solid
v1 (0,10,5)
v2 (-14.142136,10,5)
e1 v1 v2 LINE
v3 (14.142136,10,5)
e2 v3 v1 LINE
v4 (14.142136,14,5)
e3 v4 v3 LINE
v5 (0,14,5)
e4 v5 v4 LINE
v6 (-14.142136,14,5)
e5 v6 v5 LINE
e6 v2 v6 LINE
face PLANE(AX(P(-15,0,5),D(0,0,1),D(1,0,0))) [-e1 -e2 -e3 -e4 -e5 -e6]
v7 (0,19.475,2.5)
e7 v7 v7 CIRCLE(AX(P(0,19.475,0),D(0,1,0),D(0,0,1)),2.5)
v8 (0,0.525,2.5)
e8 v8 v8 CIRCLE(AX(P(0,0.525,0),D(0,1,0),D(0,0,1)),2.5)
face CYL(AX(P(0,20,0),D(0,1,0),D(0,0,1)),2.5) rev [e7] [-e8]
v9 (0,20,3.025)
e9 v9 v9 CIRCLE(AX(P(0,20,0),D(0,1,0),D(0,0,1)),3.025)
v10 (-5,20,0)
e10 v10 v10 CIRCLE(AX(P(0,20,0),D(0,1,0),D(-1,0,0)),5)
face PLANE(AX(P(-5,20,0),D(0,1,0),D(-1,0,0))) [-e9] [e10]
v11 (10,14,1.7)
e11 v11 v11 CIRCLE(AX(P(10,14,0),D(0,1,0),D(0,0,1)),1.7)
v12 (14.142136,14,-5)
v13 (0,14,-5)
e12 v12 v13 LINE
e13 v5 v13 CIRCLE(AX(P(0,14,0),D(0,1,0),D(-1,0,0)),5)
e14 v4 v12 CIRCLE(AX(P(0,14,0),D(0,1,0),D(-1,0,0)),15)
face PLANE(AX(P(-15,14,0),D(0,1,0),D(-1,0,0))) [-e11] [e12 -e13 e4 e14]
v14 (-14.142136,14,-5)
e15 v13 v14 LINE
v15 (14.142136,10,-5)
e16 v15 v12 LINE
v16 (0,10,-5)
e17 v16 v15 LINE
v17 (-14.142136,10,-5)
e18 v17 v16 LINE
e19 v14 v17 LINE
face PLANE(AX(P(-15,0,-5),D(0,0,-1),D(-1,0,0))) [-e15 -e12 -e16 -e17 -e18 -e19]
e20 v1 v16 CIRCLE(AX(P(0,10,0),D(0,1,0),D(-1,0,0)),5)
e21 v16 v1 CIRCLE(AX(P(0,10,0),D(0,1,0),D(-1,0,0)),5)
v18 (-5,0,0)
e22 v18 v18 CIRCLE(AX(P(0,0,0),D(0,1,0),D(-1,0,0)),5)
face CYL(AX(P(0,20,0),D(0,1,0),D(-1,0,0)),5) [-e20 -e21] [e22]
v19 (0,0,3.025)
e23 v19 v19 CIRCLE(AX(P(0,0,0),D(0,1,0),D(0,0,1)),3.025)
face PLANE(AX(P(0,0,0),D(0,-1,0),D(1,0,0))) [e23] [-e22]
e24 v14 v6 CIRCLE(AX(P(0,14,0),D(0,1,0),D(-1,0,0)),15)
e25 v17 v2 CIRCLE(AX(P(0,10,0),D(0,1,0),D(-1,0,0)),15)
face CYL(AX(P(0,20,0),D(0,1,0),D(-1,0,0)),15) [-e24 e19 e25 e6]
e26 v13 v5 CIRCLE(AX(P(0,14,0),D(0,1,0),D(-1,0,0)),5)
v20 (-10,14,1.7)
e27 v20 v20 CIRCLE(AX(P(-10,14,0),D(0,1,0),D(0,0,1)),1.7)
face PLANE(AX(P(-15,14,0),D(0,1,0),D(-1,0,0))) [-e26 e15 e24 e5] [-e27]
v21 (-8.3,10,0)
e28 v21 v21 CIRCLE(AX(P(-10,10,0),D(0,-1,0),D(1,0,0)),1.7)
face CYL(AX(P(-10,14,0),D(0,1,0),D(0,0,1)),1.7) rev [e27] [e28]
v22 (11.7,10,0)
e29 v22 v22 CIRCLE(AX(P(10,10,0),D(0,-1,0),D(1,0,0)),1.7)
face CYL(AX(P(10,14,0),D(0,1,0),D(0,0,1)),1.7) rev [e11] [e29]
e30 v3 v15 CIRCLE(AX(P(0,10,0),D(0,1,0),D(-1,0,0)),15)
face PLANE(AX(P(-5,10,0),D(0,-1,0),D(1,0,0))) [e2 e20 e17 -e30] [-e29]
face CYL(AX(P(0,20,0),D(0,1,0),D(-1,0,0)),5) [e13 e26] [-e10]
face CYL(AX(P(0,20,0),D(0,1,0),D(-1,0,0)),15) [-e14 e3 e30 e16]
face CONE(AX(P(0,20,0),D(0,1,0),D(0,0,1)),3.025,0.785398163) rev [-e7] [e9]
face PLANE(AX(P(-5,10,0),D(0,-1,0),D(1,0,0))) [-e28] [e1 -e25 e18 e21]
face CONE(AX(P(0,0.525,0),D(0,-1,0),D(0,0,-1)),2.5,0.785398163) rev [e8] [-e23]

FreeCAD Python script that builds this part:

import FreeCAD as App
import Part
import Sketcher
from FreeCAD import Vector


def add_polygon(sketch, points):
    """Adds a closed chain of lines whose ends are joined by coincident constraints."""
    first, n = sketch.GeometryCount, len(points)
    for a, b in zip(points, points[1:] + points[:1]):
        sketch.addGeometry(Part.LineSegment(App.Vector(*a, 0), App.Vector(*b, 0)), False)
    for i in range(n):
        sketch.addConstraint(Sketcher.Constraint("Coincident", first + i, 2, first + (i + 1) % n, 1))

doc = App.newDocument("Part")
params = doc.addObject("Spreadsheet::Sheet", "Params")
for row, (alias, value) in enumerate([
    ("sketch1_width", "5 mm"),
    ("sketch1_width2", "10 mm"),
    ("sketch1_height", "20 mm"),
    ("sketch1_height2", "6 mm"),
    ("revolution_angle", "360 deg"),
    ("sketch2_diameter", "3.4 mm"),
    ("hole_diameter", "3.4 mm"),
    ("sketch3_width", "20 mm"),
    ("sketch3_width2", "18.95 mm"),
    ("groove_angle", "360 deg"),
    ("sketch4_width", "30 mm"),
    ("sketch4_height", "10 mm"),
    ("sketch4_width2", "41.38 mm"),
], start=1):
    params.set(f"A{row}", alias)
    params.set(f"B{row}", "=" + value)
    params.setAlias(f"B{row}", alias)

body = doc.addObject("PartDesign::Body", "Body")

sketch1 = body.newObject("Sketcher::SketchObject", "Sketch")
sketch1.AttachmentSupport = (doc.getObject("XY_Plane"), [""])
sketch1.MapMode = "FlatFace"
add_polygon(sketch1, [(-5, 0), (0, 0), (0, 20), (-5, 20), (-5, 14), (-15, 14), (-15, 10), (-5, 10)])
sketch1.addConstraint(Sketcher.Constraint("Horizontal", 0))
sketch1.addConstraint(Sketcher.Constraint("Vertical", 1))
sketch1.addConstraint(Sketcher.Constraint("Horizontal", 2))
sketch1.addConstraint(Sketcher.Constraint("Vertical", 3))
sketch1.addConstraint(Sketcher.Constraint("Horizontal", 4))
sketch1.addConstraint(Sketcher.Constraint("Vertical", 5))
sketch1.addConstraint(Sketcher.Constraint("Horizontal", 6))
sketch1.addConstraint(Sketcher.Constraint("Vertical", 7))
sketch1.addConstraint(Sketcher.Constraint("Coincident", 0, 2, -1, 1))
sketch1.addConstraint(Sketcher.Constraint("Vertical", 3, 2, 6, 2))
sketch1.addConstraint(Sketcher.Constraint("Equal", 6, 7))
sketch1.addConstraint(Sketcher.Constraint("DistanceX", 0, 1, 0, 2, 5.0))
sketch1.addConstraint(Sketcher.Constraint("DistanceX", 4, 2, 4, 1, 10.0))
sketch1.addConstraint(Sketcher.Constraint("DistanceY", 1, 1, 1, 2, 20.0))
sketch1.addConstraint(Sketcher.Constraint("DistanceY", 3, 2, 3, 1, 6.0))
sketch1.setExpression("Constraints[19]", "Params.sketch1_width")
sketch1.setExpression("Constraints[20]", "Params.sketch1_width2")
sketch1.setExpression("Constraints[21]", "Params.sketch1_height")
sketch1.setExpression("Constraints[22]", "Params.sketch1_height2")
revolution = body.newObject("PartDesign::Revolution", "Revolution")
revolution.Profile = sketch1
revolution.ReferenceAxis = (sketch1, ["V_Axis"])
revolution.setExpression("Angle", "Params.revolution_angle")

sketch2 = body.newObject("Sketcher::SketchObject", "Sketch001")
sketch2.AttachmentSupport = (doc.getObject("XZ_Plane"), [""])
sketch2.MapMode = "FlatFace"
sketch2.AttachmentOffset = App.Placement(Vector(0, 0, -14), App.Rotation())
sketch2.addGeometry(Part.Circle(Vector(-10, 0, 0), Vector(0, 0, 1), 1.7), False)
sketch2.addGeometry(Part.Circle(Vector(10, 0, 0), Vector(0, 0, 1), 1.7), False)
sketch2.addConstraint(Sketcher.Constraint("Equal", 0, 1))
sketch2.addConstraint(Sketcher.Constraint("Symmetric", 0, 3, 1, 3, -1, 1))
sketch2.addConstraint(Sketcher.Constraint("PointOnObject", 0, 3, -1))
sketch2.addConstraint(Sketcher.Constraint("Diameter", 0, 3.4))
sketch2.addConstraint(Sketcher.Constraint("DistanceX", 0, 3, -1, 1, 10.0))
sketch2.setExpression("Constraints[3]", "Params.sketch2_diameter")
doc.recompute()
hole = body.newObject("PartDesign::Hole", "Hole")
hole.Profile = sketch2
hole.ThreadType = "None"
hole.setExpression("Diameter", "Params.hole_diameter")
hole.DepthType = "ThroughAll"
hole.Reversed = True

sketch3 = body.newObject("Sketcher::SketchObject", "Sketch002")
sketch3.AttachmentSupport = (doc.getObject("YZ_Plane"), [""])
sketch3.MapMode = "FlatFace"
add_polygon(sketch3, [(0, 0), (20, 0), (20, 3.025), (19.475, 2.5), (0.525, 2.5), (0, 3.025)])
sketch3.addConstraint(Sketcher.Constraint("Horizontal", 0))
sketch3.addConstraint(Sketcher.Constraint("Vertical", 1))
sketch3.addConstraint(Sketcher.Constraint("Horizontal", 3))
sketch3.addConstraint(Sketcher.Constraint("Vertical", 5))
sketch3.addConstraint(Sketcher.Constraint("Coincident", 5, 2, -1, 1))
sketch3.addConstraint(Sketcher.Constraint("Perpendicular", 2, 4))
sketch3.addConstraint(Sketcher.Constraint("Horizontal", 1, 2, 4, 2))
sketch3.addConstraint(Sketcher.Constraint("Equal", 2, 4))
sketch3.addConstraint(Sketcher.Constraint("DistanceX", 0, 1, 0, 2, 20.0))
sketch3.addConstraint(Sketcher.Constraint("DistanceX", 3, 2, 3, 1, 18.95))
sketch3.addConstraint(Sketcher.Constraint("DistanceY", -1, 1, 2, 2, 2.5))
sketch3.setExpression("Constraints[14]", "Params.sketch3_width")
sketch3.setExpression("Constraints[15]", "Params.sketch3_width2")
groove = body.newObject("PartDesign::Groove", "Groove")
groove.Profile = sketch3
groove.ReferenceAxis = (sketch3, ["H_Axis"])
groove.setExpression("Angle", "Params.groove_angle")

sketch4 = body.newObject("Sketcher::SketchObject", "Sketch003")
sketch4.AttachmentSupport = (doc.getObject("XZ_Plane"), [""])
sketch4.MapMode = "FlatFace"
sketch4.AttachmentOffset = App.Placement(Vector(0, 0, -14), App.Rotation())
add_polygon(sketch4, [(-20.69, -20.69), (-20.69, 20.69), (20.69, 20.69), (20.69, -20.69)])
add_polygon(sketch4, [(15, 5), (-15, 5), (-15, -5), (15, -5)])
sketch4.addConstraint(Sketcher.Constraint("Vertical", 0))
sketch4.addConstraint(Sketcher.Constraint("Horizontal", 1))
sketch4.addConstraint(Sketcher.Constraint("Vertical", 2))
sketch4.addConstraint(Sketcher.Constraint("Horizontal", 3))
sketch4.addConstraint(Sketcher.Constraint("Horizontal", 4))
sketch4.addConstraint(Sketcher.Constraint("Vertical", 5))
sketch4.addConstraint(Sketcher.Constraint("Horizontal", 6))
sketch4.addConstraint(Sketcher.Constraint("Vertical", 7))
sketch4.addConstraint(Sketcher.Constraint("Symmetric", 0, 2, 2, 2, -1, 1))
sketch4.addConstraint(Sketcher.Constraint("Symmetric", 4, 2, 6, 2, -1, 1))
sketch4.addConstraint(Sketcher.Constraint("Equal", 3, 0))
sketch4.addConstraint(Sketcher.Constraint("DistanceX", 4, 2, 4, 1, 30.0))
sketch4.addConstraint(Sketcher.Constraint("DistanceY", 5, 2, 5, 1, 10.0))
sketch4.addConstraint(Sketcher.Constraint("DistanceX", 1, 1, 1, 2, 41.38))
sketch4.setExpression("Constraints[19]", "Params.sketch4_width")
sketch4.setExpression("Constraints[20]", "Params.sketch4_height")
sketch4.setExpression("Constraints[21]", "Params.sketch4_width2")
pocket1 = body.newObject("PartDesign::Pocket", "Pocket")
pocket1.Profile = sketch4
pocket1.Type = "ThroughAll"
pocket1.Reversed = True

doc.recompute()
